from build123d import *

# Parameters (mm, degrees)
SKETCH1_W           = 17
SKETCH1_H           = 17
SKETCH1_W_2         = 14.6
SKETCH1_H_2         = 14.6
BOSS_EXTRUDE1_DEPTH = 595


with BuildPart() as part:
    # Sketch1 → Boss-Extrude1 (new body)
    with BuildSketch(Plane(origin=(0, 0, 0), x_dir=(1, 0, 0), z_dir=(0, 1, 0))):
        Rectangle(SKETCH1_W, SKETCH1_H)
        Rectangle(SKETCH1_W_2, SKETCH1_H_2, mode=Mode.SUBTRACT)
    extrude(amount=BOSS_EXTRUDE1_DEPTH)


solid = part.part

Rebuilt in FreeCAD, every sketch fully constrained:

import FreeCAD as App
import Part
import Sketcher

V = App.Vector
Q = App.Units.Quantity


def add_polygon(sketch, points):
    """Adds a closed chain of lines whose ends are joined by coincident constraints."""
    first, n = sketch.GeometryCount, len(points)
    for a, b in zip(points, points[1:] + points[:1]):
        sketch.addGeometry(Part.LineSegment(App.Vector(*a, 0), App.Vector(*b, 0)), False)
    for i in range(n):
        sketch.addConstraint(Sketcher.Constraint("Coincident", first + i, 2, first + (i + 1) % n, 1))

doc = App.newDocument("Part")
body = doc.addObject("PartDesign::Body", "Body")

# Sketch on XZ plane
sketch1 = body.newObject("Sketcher::SketchObject", "Sketch")
sketch1.AttachmentSupport = (doc.getObject("XZ_Plane"), [""])
sketch1.MapMode = "FlatFace"
add_polygon(sketch1, [(-8, -8), (-8, 8), (8, 8), (8, -8)])  # lines 0-3
add_polygon(sketch1, [(7, 7), (-7, 7), (-7, -7), (7, -7)])  # lines 4-7
sketch1.addConstraint(Sketcher.Constraint("Vertical", 0))
sketch1.addConstraint(Sketcher.Constraint("Horizontal", 1))
sketch1.addConstraint(Sketcher.Constraint("Vertical", 2))
sketch1.addConstraint(Sketcher.Constraint("Horizontal", 3))
sketch1.addConstraint(Sketcher.Constraint("Horizontal", 4))
sketch1.addConstraint(Sketcher.Constraint("Vertical", 5))
sketch1.addConstraint(Sketcher.Constraint("Horizontal", 6))
sketch1.addConstraint(Sketcher.Constraint("Vertical", 7))
sketch1.addConstraint(Sketcher.Constraint("Symmetric", 0, 2, 2, 2, -1, 1))
sketch1.addConstraint(Sketcher.Constraint("Symmetric", 4, 2, 6, 2, -1, 1))
sketch1.addConstraint(Sketcher.Constraint("Equal", 3, 0))
sketch1.addConstraint(Sketcher.Constraint("Equal", 6, 5))
sketch1.addConstraint(Sketcher.Constraint("DistanceX", 1, 1, 1, 2, Q("17 mm")))
sketch1.addConstraint(Sketcher.Constraint("DistanceX", 4, 2, 4, 1, Q("14.6 mm")))
pad1 = body.newObject("PartDesign::Pad", "Pad")
pad1.Profile = sketch1
pad1.Length = 595
pad1.Reversed = True

doc.recompute()
